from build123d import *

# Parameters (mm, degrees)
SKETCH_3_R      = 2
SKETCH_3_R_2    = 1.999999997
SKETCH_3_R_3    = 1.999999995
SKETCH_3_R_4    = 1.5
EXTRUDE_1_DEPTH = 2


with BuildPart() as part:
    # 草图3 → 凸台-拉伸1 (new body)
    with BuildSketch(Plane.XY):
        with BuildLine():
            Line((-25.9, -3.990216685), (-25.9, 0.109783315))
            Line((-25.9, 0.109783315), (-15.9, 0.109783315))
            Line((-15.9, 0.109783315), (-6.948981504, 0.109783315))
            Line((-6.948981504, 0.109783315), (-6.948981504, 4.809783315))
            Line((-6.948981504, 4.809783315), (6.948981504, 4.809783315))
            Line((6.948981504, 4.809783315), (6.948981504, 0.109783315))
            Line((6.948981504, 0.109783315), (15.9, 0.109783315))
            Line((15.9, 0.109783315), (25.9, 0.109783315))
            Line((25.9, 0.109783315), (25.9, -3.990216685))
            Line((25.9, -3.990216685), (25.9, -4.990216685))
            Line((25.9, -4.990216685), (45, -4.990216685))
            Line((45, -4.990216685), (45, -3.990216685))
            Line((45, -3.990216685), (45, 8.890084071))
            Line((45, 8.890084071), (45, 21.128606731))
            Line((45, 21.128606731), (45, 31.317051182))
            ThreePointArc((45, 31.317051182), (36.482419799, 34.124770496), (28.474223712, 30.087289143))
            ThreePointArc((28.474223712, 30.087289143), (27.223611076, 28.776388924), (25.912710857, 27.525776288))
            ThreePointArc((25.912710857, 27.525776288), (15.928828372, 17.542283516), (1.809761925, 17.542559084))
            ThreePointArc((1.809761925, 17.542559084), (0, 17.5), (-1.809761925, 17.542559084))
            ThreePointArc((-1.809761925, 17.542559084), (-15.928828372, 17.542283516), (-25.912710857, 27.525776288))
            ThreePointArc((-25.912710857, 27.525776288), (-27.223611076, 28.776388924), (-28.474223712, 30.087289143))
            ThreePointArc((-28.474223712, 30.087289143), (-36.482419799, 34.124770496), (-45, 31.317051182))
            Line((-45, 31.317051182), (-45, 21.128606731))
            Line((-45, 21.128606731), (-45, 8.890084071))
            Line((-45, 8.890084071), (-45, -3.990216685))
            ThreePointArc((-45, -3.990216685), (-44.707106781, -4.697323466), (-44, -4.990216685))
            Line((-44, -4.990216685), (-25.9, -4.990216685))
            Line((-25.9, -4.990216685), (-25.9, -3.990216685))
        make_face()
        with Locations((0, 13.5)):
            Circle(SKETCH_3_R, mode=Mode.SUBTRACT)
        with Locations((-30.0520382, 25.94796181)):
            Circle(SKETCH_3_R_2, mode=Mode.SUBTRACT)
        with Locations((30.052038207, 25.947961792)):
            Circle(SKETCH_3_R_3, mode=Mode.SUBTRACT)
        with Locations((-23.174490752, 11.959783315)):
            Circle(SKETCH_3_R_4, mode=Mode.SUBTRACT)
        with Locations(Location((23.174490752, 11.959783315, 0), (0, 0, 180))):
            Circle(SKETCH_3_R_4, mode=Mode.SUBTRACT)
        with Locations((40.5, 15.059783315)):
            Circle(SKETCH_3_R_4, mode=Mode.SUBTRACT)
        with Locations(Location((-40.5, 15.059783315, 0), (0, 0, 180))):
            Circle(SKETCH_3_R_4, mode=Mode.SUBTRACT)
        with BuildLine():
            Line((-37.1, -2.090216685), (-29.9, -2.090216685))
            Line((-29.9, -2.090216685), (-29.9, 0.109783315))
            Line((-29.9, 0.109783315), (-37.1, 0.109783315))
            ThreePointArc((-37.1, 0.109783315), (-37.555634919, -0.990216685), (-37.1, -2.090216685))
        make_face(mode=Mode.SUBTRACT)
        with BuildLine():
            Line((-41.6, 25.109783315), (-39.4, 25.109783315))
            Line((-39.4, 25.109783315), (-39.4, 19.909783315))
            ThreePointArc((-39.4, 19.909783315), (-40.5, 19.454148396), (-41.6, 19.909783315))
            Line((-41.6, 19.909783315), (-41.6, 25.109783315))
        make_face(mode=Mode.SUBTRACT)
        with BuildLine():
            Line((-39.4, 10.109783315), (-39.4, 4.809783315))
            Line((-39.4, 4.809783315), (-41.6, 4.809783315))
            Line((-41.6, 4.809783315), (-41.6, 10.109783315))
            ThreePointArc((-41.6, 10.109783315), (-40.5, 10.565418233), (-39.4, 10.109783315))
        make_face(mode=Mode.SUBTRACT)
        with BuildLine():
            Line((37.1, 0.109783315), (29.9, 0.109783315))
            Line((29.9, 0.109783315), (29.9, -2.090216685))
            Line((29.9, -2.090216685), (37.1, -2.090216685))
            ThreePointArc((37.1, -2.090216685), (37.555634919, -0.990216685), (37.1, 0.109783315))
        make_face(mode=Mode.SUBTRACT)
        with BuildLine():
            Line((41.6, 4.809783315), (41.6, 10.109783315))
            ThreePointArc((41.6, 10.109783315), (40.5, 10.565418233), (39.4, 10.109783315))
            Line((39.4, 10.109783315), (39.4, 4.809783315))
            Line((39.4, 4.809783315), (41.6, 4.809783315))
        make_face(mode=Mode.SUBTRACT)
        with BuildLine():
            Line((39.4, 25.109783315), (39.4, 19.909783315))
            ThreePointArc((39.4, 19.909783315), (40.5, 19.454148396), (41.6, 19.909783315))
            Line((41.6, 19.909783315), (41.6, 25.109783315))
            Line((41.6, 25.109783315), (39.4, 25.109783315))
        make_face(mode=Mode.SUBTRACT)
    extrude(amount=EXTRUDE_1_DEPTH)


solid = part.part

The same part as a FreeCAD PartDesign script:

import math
import FreeCAD as App
import Part
import Sketcher
Q = App.Units.Quantity

doc = App.newDocument("Part")
body = doc.addObject("PartDesign::Body", "Body")

sketch1 = body.newObject("Sketcher::SketchObject", "Sketch")
sketch1.AttachmentSupport = (doc.getObject("XY_Plane"), [""])
sketch1.MapMode = "FlatFace"
sketch1.addGeometry([
    Part.LineSegment(App.Vector(-25.9, 0.1, 0), App.Vector(-6.9, 0.1, 0)),
    Part.LineSegment(App.Vector(-6.9, 0.1, 0), App.Vector(-6.9, 4.8, 0)),
    Part.LineSegment(App.Vector(-6.9, 4.8, 0), App.Vector(6.9, 4.8, 0)),
    Part.LineSegment(App.Vector(6.9, 4.8, 0), App.Vector(6.9, 0.1, 0)),
    Part.LineSegment(App.Vector(6.9, 0.1, 0), App.Vector(25.9, 0.1, 0)),
    Part.LineSegment(App.Vector(25.9, 0.1, 0), App.Vector(25.9, -5, 0)),
    Part.LineSegment(App.Vector(25.9, -5, 0), App.Vector(45, -5, 0)),
    Part.LineSegment(App.Vector(45, -5, 0), App.Vector(45, 31.3, 0)),
    Part.ArcOfCircle(Part.Circle(App.Vector(37.4, 22.4, 0), App.Vector(0, 0, 1), 11.7), math.radians(49), math.radians(139)),
    Part.ArcOfCircle(Part.Circle(App.Vector(0, 56, 0), App.Vector(0, 0, 1), 38.5), math.radians(-47.7), math.radians(-42.3)),
    Part.ArcOfCircle(Part.Circle(App.Vector(8.9, 34.6, 0), App.Vector(0, 0, 1), 18.4), math.radians(-113), math.radians(-23)),
    Part.ArcOfCircle(Part.Circle(App.Vector(0, 56, 0), App.Vector(0, 0, 1), 38.5), math.radians(-92.69), math.radians(-87.31)),
    Part.ArcOfCircle(Part.Circle(App.Vector(-8.9, 34.6, 0), App.Vector(0, 0, 1), 18.4), math.radians(-157), math.radians(-67)),
    Part.ArcOfCircle(Part.Circle(App.Vector(0, 56, 0), App.Vector(0, 0, 1), 38.5), math.radians(-137.7), math.radians(-132.3)),
    Part.ArcOfCircle(Part.Circle(App.Vector(-37.4, 22.4, 0), App.Vector(0, 0, 1), 11.7), math.radians(41), math.radians(131)),
    Part.LineSegment(App.Vector(-45, 31.3, 0), App.Vector(-45, -4, 0)),
    Part.ArcOfCircle(Part.Circle(App.Vector(-44, -4, 0), App.Vector(0, 0, 1), 1), math.radians(-180), math.radians(-90)),
    Part.LineSegment(App.Vector(-44, -5, 0), App.Vector(-25.9, -5, 0)),
    Part.LineSegment(App.Vector(-25.9, -5, 0), App.Vector(-25.9, 0.1, 0)),
    Part.LineSegment(App.Vector(-29.9, -2.1, 0), App.Vector(-37.1, -2.1, 0)),
    Part.ArcOfCircle(Part.Circle(App.Vector(-36, -1, 0), App.Vector(0, 0, 1), 1.6), math.radians(135), math.radians(225)),
    Part.LineSegment(App.Vector(-37.1, 0.1, 0), App.Vector(-29.9, 0.1, 0)),
    Part.LineSegment(App.Vector(-29.9, 0.1, 0), App.Vector(-29.9, -2.1, 0)),
    Part.ArcOfCircle(Part.Circle(App.Vector(-40.5, 9, 0), App.Vector(0, 0, 1), 1.6), math.radians(45), math.radians(135)),
    Part.LineSegment(App.Vector(-39.4, 10.1, 0), App.Vector(-39.4, 4.8, 0)),
    Part.LineSegment(App.Vector(-39.4, 4.8, 0), App.Vector(-41.6, 4.8, 0)),
    Part.LineSegment(App.Vector(-41.6, 4.8, 0), App.Vector(-41.6, 10.1, 0)),
    Part.Circle(App.Vector(-23.2, 12, 0), App.Vector(0, 0, 1), 1.5),
    Part.LineSegment(App.Vector(29.9, 0.1, 0), App.Vector(37.1, 0.1, 0)),
    Part.ArcOfCircle(Part.Circle(App.Vector(36, -1, 0), App.Vector(0, 0, 1), 1.6), math.radians(-45), math.radians(45)),
    Part.LineSegment(App.Vector(37.1, -2.1, 0), App.Vector(29.9, -2.1, 0)),
    Part.LineSegment(App.Vector(29.9, -2.1, 0), App.Vector(29.9, 0.1, 0)),
    Part.LineSegment(App.Vector(41.6, 10.1, 0), App.Vector(41.6, 4.8, 0)),
    Part.LineSegment(App.Vector(41.6, 4.8, 0), App.Vector(39.4, 4.8, 0)),
    Part.LineSegment(App.Vector(39.4, 4.8, 0), App.Vector(39.4, 10.1, 0)),
    Part.ArcOfCircle(Part.Circle(App.Vector(40.5, 9, 0), App.Vector(0, 0, 1), 1.6), math.radians(45), math.radians(135)),
    Part.Circle(App.Vector(23.2, 12, 0), App.Vector(0, 0, 1), 1.5),
    Part.Circle(App.Vector(-40.5, 15.1, 0), App.Vector(0, 0, 1), 1.5),
    Part.LineSegment(App.Vector(-41.6, 19.9, 0), App.Vector(-41.6, 25.1, 0)),
    Part.LineSegment(App.Vector(-41.6, 25.1, 0), App.Vector(-39.4, 25.1, 0)),
    Part.LineSegment(App.Vector(-39.4, 25.1, 0), App.Vector(-39.4, 19.9, 0)),
    Part.ArcOfCircle(Part.Circle(App.Vector(-40.5, 21, 0), App.Vector(0, 0, 1), 1.6), math.radians(-135), math.radians(-45)),
    Part.Circle(App.Vector(-30.1, 25.9, 0), App.Vector(0, 0, 1), 2),
    Part.Circle(App.Vector(0, 13.5, 0), App.Vector(0, 0, 1), 2),
    Part.Circle(App.Vector(40.5, 15.1, 0), App.Vector(0, 0, 1), 1.5),
    Part.LineSegment(App.Vector(39.4, 19.9, 0), App.Vector(39.4, 25.1, 0)),
    Part.LineSegment(App.Vector(39.4, 25.1, 0), App.Vector(41.6, 25.1, 0)),
    Part.LineSegment(App.Vector(41.6, 25.1, 0), App.Vector(41.6, 19.9, 0)),
    Part.ArcOfCircle(Part.Circle(App.Vector(40.5, 21, 0), App.Vector(0, 0, 1), 1.6), math.radians(-135), math.radians(-45)),
    Part.Circle(App.Vector(30.1, 25.9, 0), App.Vector(0, 0, 1), 2),
], False)
sketch1.addConstraint([
    Sketcher.Constraint("Coincident", 0, 2, 1, 1),
    Sketcher.Constraint("Coincident", 1, 2, 2, 1),
    Sketcher.Constraint("Coincident", 2, 2, 3, 1),
    Sketcher.Constraint("Coincident", 3, 2, 4, 1),
    Sketcher.Constraint("Coincident", 4, 2, 5, 1),
    Sketcher.Constraint("Coincident", 5, 2, 6, 1),
    Sketcher.Constraint("Coincident", 6, 2, 7, 1),
    Sketcher.Constraint("Coincident", 7, 2, 8, 1),
    Sketcher.Constraint("Coincident", 8, 2, 9, 2),
    Sketcher.Constraint("Coincident", 9, 1, 10, 2),
    Sketcher.Constraint("Coincident", 10, 1, 11, 2),
    Sketcher.Constraint("Coincident", 11, 1, 12, 2),
    Sketcher.Constraint("Coincident", 12, 1, 13, 2),
    Sketcher.Constraint("Coincident", 13, 1, 14, 1),
    Sketcher.Constraint("Coincident", 14, 2, 15, 1),
    Sketcher.Constraint("Tangent", 15, 2, 16, 1),
    Sketcher.Constraint("Tangent", 16, 2, 17, 1),
    Sketcher.Constraint("Coincident", 17, 2, 18, 1),
    Sketcher.Constraint("Coincident", 18, 2, 0, 1),
    Sketcher.Constraint("Coincident", 19, 2, 20, 2),
    Sketcher.Constraint("Coincident", 20, 1, 21, 1),
    Sketcher.Constraint("Coincident", 21, 2, 22, 1),
    Sketcher.Constraint("Coincident", 22, 2, 19, 1),
    Sketcher.Constraint("Coincident", 23, 1, 24, 1),
    Sketcher.Constraint("Coincident", 24, 2, 25, 1),
    Sketcher.Constraint("Coincident", 25, 2, 26, 1),
    Sketcher.Constraint("Coincident", 26, 2, 23, 2),
    Sketcher.Constraint("Coincident", 28, 2, 29, 2),
    Sketcher.Constraint("Coincident", 29, 1, 30, 1),
    Sketcher.Constraint("Coincident", 30, 2, 31, 1),
    Sketcher.Constraint("Coincident", 31, 2, 28, 1),
    Sketcher.Constraint("Coincident", 32, 2, 33, 1),
    Sketcher.Constraint("Coincident", 33, 2, 34, 1),
    Sketcher.Constraint("Coincident", 34, 2, 35, 2),
    Sketcher.Constraint("Coincident", 35, 1, 32, 1),
    Sketcher.Constraint("Coincident", 38, 2, 39, 1),
    Sketcher.Constraint("Coincident", 39, 2, 40, 1),
    Sketcher.Constraint("Coincident", 40, 2, 41, 2),
    Sketcher.Constraint("Coincident", 41, 1, 38, 1),
    Sketcher.Constraint("Coincident", 45, 2, 46, 1),
    Sketcher.Constraint("Coincident", 46, 2, 47, 1),
    Sketcher.Constraint("Coincident", 47, 2, 48, 2),
    Sketcher.Constraint("Coincident", 48, 1, 45, 1),
    Sketcher.Constraint("Horizontal", 0),
    Sketcher.Constraint("Vertical", 1),
    Sketcher.Constraint("Horizontal", 2),
    Sketcher.Constraint("Vertical", 3),
    Sketcher.Constraint("Horizontal", 4),
    Sketcher.Constraint("Vertical", 5),
    Sketcher.Constraint("Horizontal", 6),
    Sketcher.Constraint("Vertical", 7),
    Sketcher.Constraint("Vertical", 15),
    Sketcher.Constraint("Horizontal", 17),
    Sketcher.Constraint("Vertical", 18),
    Sketcher.Constraint("Horizontal", 19),
    Sketcher.Constraint("Horizontal", 21),
    Sketcher.Constraint("Vertical", 22),
    Sketcher.Constraint("Vertical", 24),
    Sketcher.Constraint("Horizontal", 25),
    Sketcher.Constraint("Vertical", 26),
    Sketcher.Constraint("Horizontal", 28),
    Sketcher.Constraint("Horizontal", 30),
    Sketcher.Constraint("Vertical", 31),
    Sketcher.Constraint("Vertical", 32),
    Sketcher.Constraint("Horizontal", 33),
    Sketcher.Constraint("Vertical", 34),
    Sketcher.Constraint("Vertical", 38),
    Sketcher.Constraint("Horizontal", 39),
    Sketcher.Constraint("Vertical", 40),
    Sketcher.Constraint("Vertical", 45),
    Sketcher.Constraint("Horizontal", 46),
    Sketcher.Constraint("Vertical", 47),
    Sketcher.Constraint("Coincident", 11, 3, 9, 3),
    Sketcher.Constraint("Coincident", 13, 3, 9, 3),
    Sketcher.Constraint("Equal", 9, 11),
    Sketcher.Constraint("Equal", 10, 12),
    Sketcher.Constraint("Equal", 11, 13),
    Sketcher.Constraint("Equal", 8, 14),
    Sketcher.Constraint("Equal", 20, 23),
    Sketcher.Constraint("Equal", 23, 29),
    Sketcher.Constraint("Equal", 29, 35),
    Sketcher.Constraint("Equal", 27, 36),
    Sketcher.Constraint("Equal", 36, 37),
    Sketcher.Constraint("Equal", 35, 41),
    Sketcher.Constraint("Equal", 42, 43),
    Sketcher.Constraint("Equal", 37, 44),
    Sketcher.Constraint("Equal", 41, 48),
    Sketcher.Constraint("Equal", 43, 49),
    Sketcher.Constraint("Symmetric", 10, 3, 12, 3, -2),
    Sketcher.Constraint("Symmetric", 8, 3, 14, 3, -2),
    Sketcher.Constraint("Symmetric", 20, 3, 29, 3, -2),
    Sketcher.Constraint("Symmetric", 23, 3, 35, 3, -2),
    Sketcher.Constraint("Symmetric", 27, 3, 36, 3, -2),
    Sketcher.Constraint("Symmetric", 37, 3, 44, 3, -2),
    Sketcher.Constraint("Symmetric", 41, 3, 48, 3, -2),
    Sketcher.Constraint("Symmetric", 42, 3, 49, 3, -2),
    Sketcher.Constraint("Symmetric", 0, 2, 3, 2, -2),
    Sketcher.Constraint("Symmetric", 5, 2, 17, 2, -2),
    Sketcher.Constraint("Symmetric", 22, 2, 30, 2, -2),
    Sketcher.Constraint("Symmetric", 25, 2, 32, 2, -2),
    Sketcher.Constraint("Symmetric", 39, 2, 45, 2, -2),
    Sketcher.Constraint("PointOnObject", 9, 3, -2),
    Sketcher.Constraint("PointOnObject", 43, 3, -2),
    Sketcher.Constraint("Horizontal", 7, 2, 14, 2),
    Sketcher.Constraint("Horizontal", 18, 2, 20, 1),
    Sketcher.Constraint("Horizontal", 2, 2, 24, 2),
    Sketcher.Constraint("Horizontal", 23, 1, 26, 2),
    Sketcher.Constraint("Horizontal", 21, 2, 28, 2),
    Sketcher.Constraint("Horizontal", 26, 2, 34, 2),
    Sketcher.Constraint("Horizontal", 40, 2, 41, 1),
    Sketcher.Constraint("Horizontal", 41, 1, 47, 2),
    Sketcher.Constraint("Vertical", 23, 3, 37, 3),
    Sketcher.Constraint("Vertical", 37, 3, 41, 3),
    Sketcher.Constraint("Vertical", 19, 2, 20, 1),
    Sketcher.Constraint("Vertical", 26, 2, 38, 2),
    Sketcher.Constraint("Equal", 46, 22),
    Sketcher.Constraint("Diameter", 27, Q("3 mm")),
    Sketcher.Constraint("Diameter", 42, Q("4 mm")),
    Sketcher.Constraint("Radius", 16, Q("1 mm")),
    Sketcher.Constraint("Radius", 9, Q("38.499999 mm")),
    Sketcher.Constraint("DistanceX", 6, 1, 6, 2, Q("19.1 mm")),
    Sketcher.Constraint("DistanceX", 19, 2, 19, 1, Q("7.2 mm")),
    Sketcher.Constraint("DistanceX", 25, 2, 25, 1, Q("2.2 mm")),
    Sketcher.Constraint("DistanceY", 1, 1, 1, 2, Q("4.7 mm")),
    Sketcher.Constraint("DistanceY", 5, 2, 5, 1, Q("5.1 mm")),
    Sketcher.Constraint("DistanceY", 24, 2, 24, 1, Q("5.3 mm")),
    Sketcher.Constraint("DistanceY", 38, 1, 38, 2, Q("5.2 mm")),
    Sketcher.Constraint("DistanceY", -1, 1, 9, 3, Q("55.999999 mm")),
    Sketcher.Constraint("DistanceX", 16, 3, -1, 1, Q("44 mm")),
    Sketcher.Constraint("DistanceX", 20, 3, -1, 1, Q("36 mm")),
    Sketcher.Constraint("DistanceX", 23, 3, -1, 1, Q("40.5 mm")),
    Sketcher.Constraint("DistanceY", -1, 1, 43, 3, Q("13.5 mm")),
    Sketcher.Constraint("DistanceX", 19, 2, -1, 1, Q("37.1 mm")),
    Sketcher.Constraint("Radius", 8, Q("11.717798 mm")),
    Sketcher.Constraint("Radius", 10, Q("18.447449 mm")),
    Sketcher.Constraint("DistanceX", 0, 1, 0, 2, Q("18.951018 mm")),
    Sketcher.Constraint("DistanceY", 7, 1, 7, 2, Q("36.307268 mm")),
    Sketcher.Constraint("DistanceX", 27, 3, -1, 1, Q("23.174491 mm")),
    Sketcher.Constraint("DistanceX", 42, 3, -1, 1, Q("30.052038 mm")),
    Sketcher.Constraint("DistanceY", -1, 1, 42, 3, Q("25.947962 mm")),
    Sketcher.Constraint("DistanceY", -1, 1, 7, 2, Q("31.317051 mm")),
    Sketcher.Constraint("DistanceY", -1, 1, 8, 2, Q("30.087289 mm")),
    Sketcher.Constraint("DistanceX", -1, 1, 9, 1, Q("25.912711 mm")),
    Sketcher.Constraint("DistanceX", -1, 1, 10, 1, Q("1.809762 mm")),
    Sketcher.Constraint("DistanceY", -1, 1, 27, 3, Q("11.959783 mm")),
    Sketcher.Constraint("DistanceY", -1, 1, 37, 3, Q("15.059783 mm")),
    Sketcher.Constraint("DistanceY", -1, 1, 41, 3, Q("21.009783 mm")),
])
pad1 = body.newObject("PartDesign::Pad", "Pad")
pad1.Profile = sketch1
pad1.Length = 2

doc.recompute()
